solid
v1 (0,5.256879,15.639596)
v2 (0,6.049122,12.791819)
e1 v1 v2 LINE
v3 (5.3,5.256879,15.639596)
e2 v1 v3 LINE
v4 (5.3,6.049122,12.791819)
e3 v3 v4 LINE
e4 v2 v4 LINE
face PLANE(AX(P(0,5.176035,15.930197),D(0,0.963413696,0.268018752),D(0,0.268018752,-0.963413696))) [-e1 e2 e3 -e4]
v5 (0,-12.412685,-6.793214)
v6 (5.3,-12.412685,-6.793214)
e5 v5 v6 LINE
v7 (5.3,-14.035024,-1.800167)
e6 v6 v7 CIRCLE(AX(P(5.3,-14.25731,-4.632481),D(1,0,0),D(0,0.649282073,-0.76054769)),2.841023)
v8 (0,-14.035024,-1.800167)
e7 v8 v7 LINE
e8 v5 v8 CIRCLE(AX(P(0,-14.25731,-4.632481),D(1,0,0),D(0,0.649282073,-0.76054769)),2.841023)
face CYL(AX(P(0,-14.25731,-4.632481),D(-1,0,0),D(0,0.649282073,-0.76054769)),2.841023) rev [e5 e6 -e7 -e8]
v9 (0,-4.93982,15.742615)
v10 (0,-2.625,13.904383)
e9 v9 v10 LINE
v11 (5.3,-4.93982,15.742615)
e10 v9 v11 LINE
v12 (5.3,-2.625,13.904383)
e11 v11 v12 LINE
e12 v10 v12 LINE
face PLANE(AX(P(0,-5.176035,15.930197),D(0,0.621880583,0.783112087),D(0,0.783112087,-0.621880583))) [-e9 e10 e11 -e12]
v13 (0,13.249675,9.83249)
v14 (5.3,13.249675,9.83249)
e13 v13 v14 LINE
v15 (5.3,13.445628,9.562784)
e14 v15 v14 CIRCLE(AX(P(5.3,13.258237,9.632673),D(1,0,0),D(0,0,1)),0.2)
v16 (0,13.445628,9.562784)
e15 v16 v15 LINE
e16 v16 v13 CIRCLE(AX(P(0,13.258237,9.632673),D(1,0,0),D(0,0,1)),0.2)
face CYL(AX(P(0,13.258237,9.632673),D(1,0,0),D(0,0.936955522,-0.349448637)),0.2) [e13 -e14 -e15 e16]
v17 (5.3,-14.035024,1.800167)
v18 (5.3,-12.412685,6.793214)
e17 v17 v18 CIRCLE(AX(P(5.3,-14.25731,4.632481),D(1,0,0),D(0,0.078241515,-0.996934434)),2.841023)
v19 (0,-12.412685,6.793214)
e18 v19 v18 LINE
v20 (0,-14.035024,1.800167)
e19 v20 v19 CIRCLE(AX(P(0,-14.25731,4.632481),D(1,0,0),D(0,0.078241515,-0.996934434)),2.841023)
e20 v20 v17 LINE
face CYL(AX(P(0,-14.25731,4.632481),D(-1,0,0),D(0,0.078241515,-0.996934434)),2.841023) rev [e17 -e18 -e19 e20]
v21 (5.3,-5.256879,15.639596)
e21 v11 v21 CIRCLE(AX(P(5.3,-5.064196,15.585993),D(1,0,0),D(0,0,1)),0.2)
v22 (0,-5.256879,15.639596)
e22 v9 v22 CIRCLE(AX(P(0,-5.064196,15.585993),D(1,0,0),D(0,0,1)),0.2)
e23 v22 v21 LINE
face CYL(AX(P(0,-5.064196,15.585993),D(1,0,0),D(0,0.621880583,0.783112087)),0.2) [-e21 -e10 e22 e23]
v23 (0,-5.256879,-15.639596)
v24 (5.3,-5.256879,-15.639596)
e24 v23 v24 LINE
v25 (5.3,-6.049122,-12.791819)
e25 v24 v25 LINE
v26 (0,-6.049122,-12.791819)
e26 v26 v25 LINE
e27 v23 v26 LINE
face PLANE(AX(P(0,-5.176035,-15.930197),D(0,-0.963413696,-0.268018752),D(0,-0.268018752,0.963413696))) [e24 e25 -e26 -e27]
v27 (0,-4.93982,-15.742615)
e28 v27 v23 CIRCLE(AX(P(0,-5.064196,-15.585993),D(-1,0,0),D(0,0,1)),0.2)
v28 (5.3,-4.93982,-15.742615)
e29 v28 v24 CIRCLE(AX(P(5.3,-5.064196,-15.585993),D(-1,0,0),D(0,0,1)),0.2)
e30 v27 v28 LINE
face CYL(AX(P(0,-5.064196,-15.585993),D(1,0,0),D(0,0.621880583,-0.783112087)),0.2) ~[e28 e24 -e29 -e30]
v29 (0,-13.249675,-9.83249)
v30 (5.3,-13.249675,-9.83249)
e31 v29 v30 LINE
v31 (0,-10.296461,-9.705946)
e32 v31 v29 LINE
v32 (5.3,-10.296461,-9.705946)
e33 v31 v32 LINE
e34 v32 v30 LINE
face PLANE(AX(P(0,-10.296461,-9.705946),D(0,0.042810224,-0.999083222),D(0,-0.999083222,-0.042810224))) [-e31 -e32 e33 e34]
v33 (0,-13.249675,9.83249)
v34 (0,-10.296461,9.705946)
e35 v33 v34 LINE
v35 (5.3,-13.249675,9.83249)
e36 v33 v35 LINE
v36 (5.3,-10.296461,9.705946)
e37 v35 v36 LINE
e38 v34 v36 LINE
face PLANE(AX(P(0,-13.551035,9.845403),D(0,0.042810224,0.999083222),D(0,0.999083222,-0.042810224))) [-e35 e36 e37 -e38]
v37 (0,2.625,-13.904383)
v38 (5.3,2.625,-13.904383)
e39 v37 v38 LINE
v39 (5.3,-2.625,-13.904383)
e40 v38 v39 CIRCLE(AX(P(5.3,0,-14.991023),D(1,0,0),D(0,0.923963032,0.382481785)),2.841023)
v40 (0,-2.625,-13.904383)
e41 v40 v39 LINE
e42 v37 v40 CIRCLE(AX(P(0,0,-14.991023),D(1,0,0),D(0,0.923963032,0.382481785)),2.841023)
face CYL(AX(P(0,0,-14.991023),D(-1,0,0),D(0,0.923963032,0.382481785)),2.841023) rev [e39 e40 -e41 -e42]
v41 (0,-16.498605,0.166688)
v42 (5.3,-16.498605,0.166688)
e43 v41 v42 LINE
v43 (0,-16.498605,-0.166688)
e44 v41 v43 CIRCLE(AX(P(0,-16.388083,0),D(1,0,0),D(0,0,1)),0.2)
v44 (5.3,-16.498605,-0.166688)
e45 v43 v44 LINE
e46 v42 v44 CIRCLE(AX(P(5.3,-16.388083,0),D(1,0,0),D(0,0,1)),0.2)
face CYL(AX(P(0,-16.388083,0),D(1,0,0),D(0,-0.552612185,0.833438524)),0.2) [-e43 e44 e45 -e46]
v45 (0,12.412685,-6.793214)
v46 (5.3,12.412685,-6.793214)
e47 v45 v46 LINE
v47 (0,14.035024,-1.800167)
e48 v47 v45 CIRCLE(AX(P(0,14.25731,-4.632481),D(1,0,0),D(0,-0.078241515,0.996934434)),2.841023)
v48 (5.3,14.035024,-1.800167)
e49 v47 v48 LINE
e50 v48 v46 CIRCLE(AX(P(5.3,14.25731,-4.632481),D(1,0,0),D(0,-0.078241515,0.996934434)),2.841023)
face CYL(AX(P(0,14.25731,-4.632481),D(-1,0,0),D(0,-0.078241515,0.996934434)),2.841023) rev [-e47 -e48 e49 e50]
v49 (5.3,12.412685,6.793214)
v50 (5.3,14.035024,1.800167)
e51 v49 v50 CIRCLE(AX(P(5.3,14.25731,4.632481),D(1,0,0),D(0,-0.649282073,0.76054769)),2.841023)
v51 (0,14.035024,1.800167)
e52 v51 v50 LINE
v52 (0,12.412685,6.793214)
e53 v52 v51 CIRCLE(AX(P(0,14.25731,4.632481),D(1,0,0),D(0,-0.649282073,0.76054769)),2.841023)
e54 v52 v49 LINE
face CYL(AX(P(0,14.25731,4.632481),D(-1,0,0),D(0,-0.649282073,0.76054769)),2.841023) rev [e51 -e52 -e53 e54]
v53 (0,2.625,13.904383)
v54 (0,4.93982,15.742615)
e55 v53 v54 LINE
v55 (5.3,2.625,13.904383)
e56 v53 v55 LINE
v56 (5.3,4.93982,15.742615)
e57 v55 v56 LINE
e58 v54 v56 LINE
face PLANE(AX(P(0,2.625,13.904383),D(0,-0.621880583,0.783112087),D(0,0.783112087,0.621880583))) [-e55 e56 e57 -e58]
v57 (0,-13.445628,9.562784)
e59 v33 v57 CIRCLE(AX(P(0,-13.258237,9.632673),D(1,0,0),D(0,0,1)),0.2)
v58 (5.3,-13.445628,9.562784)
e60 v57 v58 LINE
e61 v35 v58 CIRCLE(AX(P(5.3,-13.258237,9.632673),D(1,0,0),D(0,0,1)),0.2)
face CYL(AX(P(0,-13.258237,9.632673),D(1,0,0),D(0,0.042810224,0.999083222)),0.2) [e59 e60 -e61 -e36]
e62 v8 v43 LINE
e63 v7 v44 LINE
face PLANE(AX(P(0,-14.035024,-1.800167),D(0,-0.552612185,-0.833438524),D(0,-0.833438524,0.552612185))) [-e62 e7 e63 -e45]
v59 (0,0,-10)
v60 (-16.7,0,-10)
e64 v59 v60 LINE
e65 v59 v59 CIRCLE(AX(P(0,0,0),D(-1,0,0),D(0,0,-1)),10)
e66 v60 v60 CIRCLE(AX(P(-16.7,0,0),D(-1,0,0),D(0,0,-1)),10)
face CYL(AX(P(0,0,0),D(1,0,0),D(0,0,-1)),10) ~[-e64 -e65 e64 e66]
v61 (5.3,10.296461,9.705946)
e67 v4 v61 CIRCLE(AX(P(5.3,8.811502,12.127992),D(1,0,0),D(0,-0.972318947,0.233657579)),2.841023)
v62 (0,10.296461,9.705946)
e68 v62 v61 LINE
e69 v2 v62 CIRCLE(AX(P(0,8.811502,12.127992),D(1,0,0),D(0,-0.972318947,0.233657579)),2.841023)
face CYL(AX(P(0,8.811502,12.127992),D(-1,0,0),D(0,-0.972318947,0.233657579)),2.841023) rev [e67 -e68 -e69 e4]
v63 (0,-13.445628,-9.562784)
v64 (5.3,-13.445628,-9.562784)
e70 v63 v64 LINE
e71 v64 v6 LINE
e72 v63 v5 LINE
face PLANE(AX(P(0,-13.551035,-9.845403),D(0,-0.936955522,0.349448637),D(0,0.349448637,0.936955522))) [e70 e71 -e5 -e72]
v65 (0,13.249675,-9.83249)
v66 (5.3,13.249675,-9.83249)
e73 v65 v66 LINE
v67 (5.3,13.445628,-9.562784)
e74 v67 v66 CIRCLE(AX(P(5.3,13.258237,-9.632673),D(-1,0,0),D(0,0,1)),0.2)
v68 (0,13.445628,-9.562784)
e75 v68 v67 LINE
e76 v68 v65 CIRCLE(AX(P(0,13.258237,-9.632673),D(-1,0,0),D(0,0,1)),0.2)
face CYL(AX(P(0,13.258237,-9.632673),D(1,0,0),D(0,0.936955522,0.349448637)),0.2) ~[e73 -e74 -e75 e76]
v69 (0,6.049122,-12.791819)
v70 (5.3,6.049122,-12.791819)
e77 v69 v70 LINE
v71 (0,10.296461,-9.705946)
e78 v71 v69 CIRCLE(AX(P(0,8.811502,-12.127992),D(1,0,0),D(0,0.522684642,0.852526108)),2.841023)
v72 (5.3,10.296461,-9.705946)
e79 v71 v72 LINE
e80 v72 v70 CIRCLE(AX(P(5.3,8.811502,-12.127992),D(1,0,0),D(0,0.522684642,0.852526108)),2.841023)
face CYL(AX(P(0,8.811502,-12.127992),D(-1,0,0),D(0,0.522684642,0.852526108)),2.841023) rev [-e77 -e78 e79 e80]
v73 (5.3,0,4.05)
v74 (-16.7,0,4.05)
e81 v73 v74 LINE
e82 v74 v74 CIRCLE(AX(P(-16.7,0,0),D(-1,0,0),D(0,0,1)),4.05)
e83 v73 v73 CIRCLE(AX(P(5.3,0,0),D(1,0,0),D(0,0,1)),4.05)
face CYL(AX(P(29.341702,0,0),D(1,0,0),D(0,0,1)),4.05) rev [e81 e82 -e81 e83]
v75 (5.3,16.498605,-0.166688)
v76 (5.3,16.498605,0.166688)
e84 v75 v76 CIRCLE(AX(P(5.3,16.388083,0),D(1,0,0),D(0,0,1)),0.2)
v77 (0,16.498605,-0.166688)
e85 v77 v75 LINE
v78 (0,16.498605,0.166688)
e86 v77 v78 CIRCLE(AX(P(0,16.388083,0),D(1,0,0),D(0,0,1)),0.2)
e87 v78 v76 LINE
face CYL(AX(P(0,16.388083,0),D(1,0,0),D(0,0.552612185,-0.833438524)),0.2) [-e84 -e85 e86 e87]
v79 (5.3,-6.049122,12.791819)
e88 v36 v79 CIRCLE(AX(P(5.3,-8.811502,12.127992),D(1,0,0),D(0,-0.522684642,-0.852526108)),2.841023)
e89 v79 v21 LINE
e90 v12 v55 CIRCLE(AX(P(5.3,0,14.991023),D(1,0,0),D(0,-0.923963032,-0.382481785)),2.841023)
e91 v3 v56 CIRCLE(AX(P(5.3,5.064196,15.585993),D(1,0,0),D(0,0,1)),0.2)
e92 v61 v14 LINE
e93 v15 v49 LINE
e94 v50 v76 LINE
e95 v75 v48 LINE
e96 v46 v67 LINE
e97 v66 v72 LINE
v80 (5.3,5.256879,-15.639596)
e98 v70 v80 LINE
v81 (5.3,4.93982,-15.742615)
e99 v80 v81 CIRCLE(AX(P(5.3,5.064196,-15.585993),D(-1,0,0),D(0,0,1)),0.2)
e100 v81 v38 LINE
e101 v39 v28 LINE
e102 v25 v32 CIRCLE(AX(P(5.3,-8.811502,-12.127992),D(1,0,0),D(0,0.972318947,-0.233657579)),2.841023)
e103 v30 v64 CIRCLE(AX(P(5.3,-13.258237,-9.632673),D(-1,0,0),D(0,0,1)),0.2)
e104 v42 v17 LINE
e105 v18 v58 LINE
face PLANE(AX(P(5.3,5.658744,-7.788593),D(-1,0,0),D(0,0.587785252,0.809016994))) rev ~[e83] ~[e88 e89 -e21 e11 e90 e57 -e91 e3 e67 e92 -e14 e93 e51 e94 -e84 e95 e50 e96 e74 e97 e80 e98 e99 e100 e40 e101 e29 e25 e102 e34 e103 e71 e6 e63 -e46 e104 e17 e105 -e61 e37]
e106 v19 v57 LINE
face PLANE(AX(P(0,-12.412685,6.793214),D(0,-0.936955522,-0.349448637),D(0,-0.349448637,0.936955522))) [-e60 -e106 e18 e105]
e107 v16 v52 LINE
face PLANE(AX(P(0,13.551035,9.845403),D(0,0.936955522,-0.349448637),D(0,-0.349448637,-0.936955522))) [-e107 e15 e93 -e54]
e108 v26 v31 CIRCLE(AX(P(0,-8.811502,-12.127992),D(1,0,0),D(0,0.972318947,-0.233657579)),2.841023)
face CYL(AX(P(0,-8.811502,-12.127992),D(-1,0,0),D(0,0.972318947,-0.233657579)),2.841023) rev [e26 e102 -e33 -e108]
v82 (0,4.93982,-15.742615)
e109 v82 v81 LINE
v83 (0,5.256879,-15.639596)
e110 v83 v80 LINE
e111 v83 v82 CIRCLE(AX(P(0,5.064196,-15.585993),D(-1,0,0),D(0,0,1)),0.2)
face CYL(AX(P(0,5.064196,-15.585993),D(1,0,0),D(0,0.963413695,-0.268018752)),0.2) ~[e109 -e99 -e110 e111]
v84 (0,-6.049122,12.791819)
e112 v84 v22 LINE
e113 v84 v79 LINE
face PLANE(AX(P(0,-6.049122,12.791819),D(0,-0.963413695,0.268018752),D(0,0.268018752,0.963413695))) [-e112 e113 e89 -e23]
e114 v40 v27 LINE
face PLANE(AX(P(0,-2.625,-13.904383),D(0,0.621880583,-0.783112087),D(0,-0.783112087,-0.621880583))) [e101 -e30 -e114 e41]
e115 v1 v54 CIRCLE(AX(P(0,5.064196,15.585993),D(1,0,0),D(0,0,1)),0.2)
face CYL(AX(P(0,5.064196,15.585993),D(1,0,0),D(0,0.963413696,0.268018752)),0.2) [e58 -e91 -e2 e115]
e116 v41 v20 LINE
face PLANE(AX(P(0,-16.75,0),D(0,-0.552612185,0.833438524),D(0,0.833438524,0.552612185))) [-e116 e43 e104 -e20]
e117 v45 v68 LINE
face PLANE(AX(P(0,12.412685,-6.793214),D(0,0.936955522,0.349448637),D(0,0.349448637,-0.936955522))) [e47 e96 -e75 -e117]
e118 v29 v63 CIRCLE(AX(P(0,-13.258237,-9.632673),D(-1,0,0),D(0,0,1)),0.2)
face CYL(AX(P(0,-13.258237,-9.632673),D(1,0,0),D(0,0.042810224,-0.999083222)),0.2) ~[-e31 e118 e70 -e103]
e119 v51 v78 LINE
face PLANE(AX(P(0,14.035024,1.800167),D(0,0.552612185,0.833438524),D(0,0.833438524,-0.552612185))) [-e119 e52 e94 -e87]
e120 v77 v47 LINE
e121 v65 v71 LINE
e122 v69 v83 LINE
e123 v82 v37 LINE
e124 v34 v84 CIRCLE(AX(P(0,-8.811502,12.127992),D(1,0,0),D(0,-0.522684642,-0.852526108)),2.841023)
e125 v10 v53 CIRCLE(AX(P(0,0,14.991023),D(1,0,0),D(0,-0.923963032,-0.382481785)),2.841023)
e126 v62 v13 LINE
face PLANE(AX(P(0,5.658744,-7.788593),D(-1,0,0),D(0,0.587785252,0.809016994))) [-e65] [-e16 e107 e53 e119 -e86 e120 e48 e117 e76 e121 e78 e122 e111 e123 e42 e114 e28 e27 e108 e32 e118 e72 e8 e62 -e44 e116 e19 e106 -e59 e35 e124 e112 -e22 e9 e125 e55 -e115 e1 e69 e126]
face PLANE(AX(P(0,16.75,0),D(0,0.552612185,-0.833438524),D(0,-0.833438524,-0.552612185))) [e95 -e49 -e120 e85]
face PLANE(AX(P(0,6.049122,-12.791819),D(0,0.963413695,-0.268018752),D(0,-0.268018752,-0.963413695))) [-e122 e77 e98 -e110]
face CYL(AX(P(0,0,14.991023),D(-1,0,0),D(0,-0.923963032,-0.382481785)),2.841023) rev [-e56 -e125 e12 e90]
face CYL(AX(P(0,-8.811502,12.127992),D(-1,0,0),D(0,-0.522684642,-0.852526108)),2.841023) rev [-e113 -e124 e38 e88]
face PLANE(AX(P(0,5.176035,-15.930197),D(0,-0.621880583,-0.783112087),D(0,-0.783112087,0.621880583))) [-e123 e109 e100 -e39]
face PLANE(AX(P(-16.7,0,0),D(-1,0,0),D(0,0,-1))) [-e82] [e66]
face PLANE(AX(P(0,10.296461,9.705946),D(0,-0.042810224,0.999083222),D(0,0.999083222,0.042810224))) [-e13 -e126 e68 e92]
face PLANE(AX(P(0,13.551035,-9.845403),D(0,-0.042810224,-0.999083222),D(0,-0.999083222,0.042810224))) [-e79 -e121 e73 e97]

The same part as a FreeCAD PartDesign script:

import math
import FreeCAD as App
import Part
import Sketcher

V = App.Vector
Q = App.Units.Quantity


def edges_at(feature, points):
    """Names of the edges that pass closest to the given points."""
    edges = feature.Shape.Edges
    near = lambda p: min(range(len(edges)), key=lambda i: edges[i].distToShape(Part.Vertex(*p))[0])
    return sorted({f"Edge{near(p) + 1}" for p in points})

doc = App.newDocument("Part")
body = doc.addObject("PartDesign::Body", "Body")

# Sketch on YZ plane
sketch1 = body.newObject("Sketcher::SketchObject", "Sketch")
sketch1.AttachmentSupport = (doc.getObject("YZ_Plane"), [""])
sketch1.MapMode = "FlatFace"
sketch1.addGeometry([
    Part.LineSegment(V(16.75, 0, 0), V(0, 0, 0)),  # 0
    Part.LineSegment(V(0, 0, 0), V(13.551035, -9.845403, 0)),  # 1
    Part.LineSegment(V(13.551035, -9.845403, 0), V(12.412685, -6.793214, 0)),  # 2
    Part.ArcOfCircle(Part.Circle(V(14.25731, -4.632481, 0), V(0, 0, 1), 2.841023), math.radians(94.487495), math.radians(229.512505)),  # 3
    Part.LineSegment(V(14.035024, -1.800167, 0), V(16.75, 0, 0)),  # 4
], False)
sketch1.addConstraint([
    Sketcher.Constraint("Coincident", 0, 2, 1, 1),
    Sketcher.Constraint("Coincident", 1, 2, 2, 1),
    Sketcher.Constraint("Coincident", 2, 2, 3, 2),
    Sketcher.Constraint("Coincident", 3, 1, 4, 1),
    Sketcher.Constraint("Coincident", 4, 2, 0, 1),
    Sketcher.Constraint("Horizontal", 0),
    Sketcher.Constraint("Coincident", 0, 2, -1, 1),
    Sketcher.Constraint("Equal", 2, 4),
    Sketcher.Constraint("Angle", 1, Q("-36 deg")),
    Sketcher.Constraint("DistanceX", 0, 2, 0, 1, 16.75),
    Sketcher.Constraint("Distance", 1, 16.75),
    Sketcher.Constraint("Radius", 3, 2.841023),
    Sketcher.Constraint("Distance", 2, 3.25756),
    Sketcher.Constraint("DistanceX", -1, 1, 3, 3, 14.25731),
    Sketcher.Constraint("DistanceY", 3, 3, -1, 1, 4.632481),
])
pad1 = body.newObject("PartDesign::Pad", "Pad")
pad1.Profile = sketch1
pad1.Length = 5.3
doc.recompute()

polarpattern = body.newObject("PartDesign::PolarPattern", "PolarPattern")
polarpattern.Originals = [pad1]
polarpattern.Axis = (doc.getObject("X_Axis"), [""])
polarpattern.Angle = 360
polarpattern.Occurrences = 10
body.Tip = polarpattern
doc.recompute()

fillet = body.newObject("PartDesign::Fillet", "Fillet")
fillet.Base = (polarpattern, edges_at(polarpattern, [(2.65, 16.75, 0)]))
fillet.Radius = 0.2
doc.recompute()

fillet2 = body.newObject("PartDesign::Fillet", "Fillet001")
fillet2.Base = (fillet, edges_at(fillet, [
    (2.65, 13.551, -9.845),
    (2.65, 13.551, 9.845),
    (2.65, 5.176, 15.93),
    (2.65, -5.176, 15.93),
    (2.65, -13.551, 9.845),
    (2.65, -16.75, 0),
    (2.65, -13.551, -9.845),
    (2.65, -5.176, -15.93),
    (2.65, 5.176, -15.93),
]))
fillet2.Radius = 0.2

# Sketch on YZ plane
sketch2 = body.newObject("Sketcher::SketchObject", "Sketch001")
sketch2.AttachmentSupport = (doc.getObject("YZ_Plane"), [""])
sketch2.MapMode = "FlatFace"
sketch2.addGeometry([
    Part.Circle(V(0, 0, 0), V(0, 0, 1), 10),
    Part.Circle(V(0, 0, 0), V(0, 0, 1), 4.05),
], False)
sketch2.addConstraint([
    Sketcher.Constraint("Coincident", 0, 3, -1, 1),
    Sketcher.Constraint("Coincident", 1, 3, -1, 1),
    Sketcher.Constraint("Diameter", 0, 20.0),
    Sketcher.Constraint("Diameter", 1, 8.1),
])
pad2 = body.newObject("PartDesign::Pad", "Pad001")
pad2.Profile = sketch2
pad2.Length = 16.7
pad2.Reversed = True

# Sketch on YZ plane
sketch3 = body.newObject("Sketcher::SketchObject", "Sketch002")
sketch3.AttachmentSupport = (doc.getObject("YZ_Plane"), [""])
sketch3.MapMode = "FlatFace"
sketch3.addGeometry(Part.Circle(V(0, 0, 0), V(0, 0, 1), 4.05), False)
sketch3.addConstraint([
    Sketcher.Constraint("Coincident", 0, 3, -1, 1),
    Sketcher.Constraint("Diameter", 0, 8.1),
])
pocket1 = body.newObject("PartDesign::Pocket", "Pocket")
pocket1.Profile = sketch3
pocket1.Type = "ThroughAll"
pocket1.Midplane = True

doc.recompute()
